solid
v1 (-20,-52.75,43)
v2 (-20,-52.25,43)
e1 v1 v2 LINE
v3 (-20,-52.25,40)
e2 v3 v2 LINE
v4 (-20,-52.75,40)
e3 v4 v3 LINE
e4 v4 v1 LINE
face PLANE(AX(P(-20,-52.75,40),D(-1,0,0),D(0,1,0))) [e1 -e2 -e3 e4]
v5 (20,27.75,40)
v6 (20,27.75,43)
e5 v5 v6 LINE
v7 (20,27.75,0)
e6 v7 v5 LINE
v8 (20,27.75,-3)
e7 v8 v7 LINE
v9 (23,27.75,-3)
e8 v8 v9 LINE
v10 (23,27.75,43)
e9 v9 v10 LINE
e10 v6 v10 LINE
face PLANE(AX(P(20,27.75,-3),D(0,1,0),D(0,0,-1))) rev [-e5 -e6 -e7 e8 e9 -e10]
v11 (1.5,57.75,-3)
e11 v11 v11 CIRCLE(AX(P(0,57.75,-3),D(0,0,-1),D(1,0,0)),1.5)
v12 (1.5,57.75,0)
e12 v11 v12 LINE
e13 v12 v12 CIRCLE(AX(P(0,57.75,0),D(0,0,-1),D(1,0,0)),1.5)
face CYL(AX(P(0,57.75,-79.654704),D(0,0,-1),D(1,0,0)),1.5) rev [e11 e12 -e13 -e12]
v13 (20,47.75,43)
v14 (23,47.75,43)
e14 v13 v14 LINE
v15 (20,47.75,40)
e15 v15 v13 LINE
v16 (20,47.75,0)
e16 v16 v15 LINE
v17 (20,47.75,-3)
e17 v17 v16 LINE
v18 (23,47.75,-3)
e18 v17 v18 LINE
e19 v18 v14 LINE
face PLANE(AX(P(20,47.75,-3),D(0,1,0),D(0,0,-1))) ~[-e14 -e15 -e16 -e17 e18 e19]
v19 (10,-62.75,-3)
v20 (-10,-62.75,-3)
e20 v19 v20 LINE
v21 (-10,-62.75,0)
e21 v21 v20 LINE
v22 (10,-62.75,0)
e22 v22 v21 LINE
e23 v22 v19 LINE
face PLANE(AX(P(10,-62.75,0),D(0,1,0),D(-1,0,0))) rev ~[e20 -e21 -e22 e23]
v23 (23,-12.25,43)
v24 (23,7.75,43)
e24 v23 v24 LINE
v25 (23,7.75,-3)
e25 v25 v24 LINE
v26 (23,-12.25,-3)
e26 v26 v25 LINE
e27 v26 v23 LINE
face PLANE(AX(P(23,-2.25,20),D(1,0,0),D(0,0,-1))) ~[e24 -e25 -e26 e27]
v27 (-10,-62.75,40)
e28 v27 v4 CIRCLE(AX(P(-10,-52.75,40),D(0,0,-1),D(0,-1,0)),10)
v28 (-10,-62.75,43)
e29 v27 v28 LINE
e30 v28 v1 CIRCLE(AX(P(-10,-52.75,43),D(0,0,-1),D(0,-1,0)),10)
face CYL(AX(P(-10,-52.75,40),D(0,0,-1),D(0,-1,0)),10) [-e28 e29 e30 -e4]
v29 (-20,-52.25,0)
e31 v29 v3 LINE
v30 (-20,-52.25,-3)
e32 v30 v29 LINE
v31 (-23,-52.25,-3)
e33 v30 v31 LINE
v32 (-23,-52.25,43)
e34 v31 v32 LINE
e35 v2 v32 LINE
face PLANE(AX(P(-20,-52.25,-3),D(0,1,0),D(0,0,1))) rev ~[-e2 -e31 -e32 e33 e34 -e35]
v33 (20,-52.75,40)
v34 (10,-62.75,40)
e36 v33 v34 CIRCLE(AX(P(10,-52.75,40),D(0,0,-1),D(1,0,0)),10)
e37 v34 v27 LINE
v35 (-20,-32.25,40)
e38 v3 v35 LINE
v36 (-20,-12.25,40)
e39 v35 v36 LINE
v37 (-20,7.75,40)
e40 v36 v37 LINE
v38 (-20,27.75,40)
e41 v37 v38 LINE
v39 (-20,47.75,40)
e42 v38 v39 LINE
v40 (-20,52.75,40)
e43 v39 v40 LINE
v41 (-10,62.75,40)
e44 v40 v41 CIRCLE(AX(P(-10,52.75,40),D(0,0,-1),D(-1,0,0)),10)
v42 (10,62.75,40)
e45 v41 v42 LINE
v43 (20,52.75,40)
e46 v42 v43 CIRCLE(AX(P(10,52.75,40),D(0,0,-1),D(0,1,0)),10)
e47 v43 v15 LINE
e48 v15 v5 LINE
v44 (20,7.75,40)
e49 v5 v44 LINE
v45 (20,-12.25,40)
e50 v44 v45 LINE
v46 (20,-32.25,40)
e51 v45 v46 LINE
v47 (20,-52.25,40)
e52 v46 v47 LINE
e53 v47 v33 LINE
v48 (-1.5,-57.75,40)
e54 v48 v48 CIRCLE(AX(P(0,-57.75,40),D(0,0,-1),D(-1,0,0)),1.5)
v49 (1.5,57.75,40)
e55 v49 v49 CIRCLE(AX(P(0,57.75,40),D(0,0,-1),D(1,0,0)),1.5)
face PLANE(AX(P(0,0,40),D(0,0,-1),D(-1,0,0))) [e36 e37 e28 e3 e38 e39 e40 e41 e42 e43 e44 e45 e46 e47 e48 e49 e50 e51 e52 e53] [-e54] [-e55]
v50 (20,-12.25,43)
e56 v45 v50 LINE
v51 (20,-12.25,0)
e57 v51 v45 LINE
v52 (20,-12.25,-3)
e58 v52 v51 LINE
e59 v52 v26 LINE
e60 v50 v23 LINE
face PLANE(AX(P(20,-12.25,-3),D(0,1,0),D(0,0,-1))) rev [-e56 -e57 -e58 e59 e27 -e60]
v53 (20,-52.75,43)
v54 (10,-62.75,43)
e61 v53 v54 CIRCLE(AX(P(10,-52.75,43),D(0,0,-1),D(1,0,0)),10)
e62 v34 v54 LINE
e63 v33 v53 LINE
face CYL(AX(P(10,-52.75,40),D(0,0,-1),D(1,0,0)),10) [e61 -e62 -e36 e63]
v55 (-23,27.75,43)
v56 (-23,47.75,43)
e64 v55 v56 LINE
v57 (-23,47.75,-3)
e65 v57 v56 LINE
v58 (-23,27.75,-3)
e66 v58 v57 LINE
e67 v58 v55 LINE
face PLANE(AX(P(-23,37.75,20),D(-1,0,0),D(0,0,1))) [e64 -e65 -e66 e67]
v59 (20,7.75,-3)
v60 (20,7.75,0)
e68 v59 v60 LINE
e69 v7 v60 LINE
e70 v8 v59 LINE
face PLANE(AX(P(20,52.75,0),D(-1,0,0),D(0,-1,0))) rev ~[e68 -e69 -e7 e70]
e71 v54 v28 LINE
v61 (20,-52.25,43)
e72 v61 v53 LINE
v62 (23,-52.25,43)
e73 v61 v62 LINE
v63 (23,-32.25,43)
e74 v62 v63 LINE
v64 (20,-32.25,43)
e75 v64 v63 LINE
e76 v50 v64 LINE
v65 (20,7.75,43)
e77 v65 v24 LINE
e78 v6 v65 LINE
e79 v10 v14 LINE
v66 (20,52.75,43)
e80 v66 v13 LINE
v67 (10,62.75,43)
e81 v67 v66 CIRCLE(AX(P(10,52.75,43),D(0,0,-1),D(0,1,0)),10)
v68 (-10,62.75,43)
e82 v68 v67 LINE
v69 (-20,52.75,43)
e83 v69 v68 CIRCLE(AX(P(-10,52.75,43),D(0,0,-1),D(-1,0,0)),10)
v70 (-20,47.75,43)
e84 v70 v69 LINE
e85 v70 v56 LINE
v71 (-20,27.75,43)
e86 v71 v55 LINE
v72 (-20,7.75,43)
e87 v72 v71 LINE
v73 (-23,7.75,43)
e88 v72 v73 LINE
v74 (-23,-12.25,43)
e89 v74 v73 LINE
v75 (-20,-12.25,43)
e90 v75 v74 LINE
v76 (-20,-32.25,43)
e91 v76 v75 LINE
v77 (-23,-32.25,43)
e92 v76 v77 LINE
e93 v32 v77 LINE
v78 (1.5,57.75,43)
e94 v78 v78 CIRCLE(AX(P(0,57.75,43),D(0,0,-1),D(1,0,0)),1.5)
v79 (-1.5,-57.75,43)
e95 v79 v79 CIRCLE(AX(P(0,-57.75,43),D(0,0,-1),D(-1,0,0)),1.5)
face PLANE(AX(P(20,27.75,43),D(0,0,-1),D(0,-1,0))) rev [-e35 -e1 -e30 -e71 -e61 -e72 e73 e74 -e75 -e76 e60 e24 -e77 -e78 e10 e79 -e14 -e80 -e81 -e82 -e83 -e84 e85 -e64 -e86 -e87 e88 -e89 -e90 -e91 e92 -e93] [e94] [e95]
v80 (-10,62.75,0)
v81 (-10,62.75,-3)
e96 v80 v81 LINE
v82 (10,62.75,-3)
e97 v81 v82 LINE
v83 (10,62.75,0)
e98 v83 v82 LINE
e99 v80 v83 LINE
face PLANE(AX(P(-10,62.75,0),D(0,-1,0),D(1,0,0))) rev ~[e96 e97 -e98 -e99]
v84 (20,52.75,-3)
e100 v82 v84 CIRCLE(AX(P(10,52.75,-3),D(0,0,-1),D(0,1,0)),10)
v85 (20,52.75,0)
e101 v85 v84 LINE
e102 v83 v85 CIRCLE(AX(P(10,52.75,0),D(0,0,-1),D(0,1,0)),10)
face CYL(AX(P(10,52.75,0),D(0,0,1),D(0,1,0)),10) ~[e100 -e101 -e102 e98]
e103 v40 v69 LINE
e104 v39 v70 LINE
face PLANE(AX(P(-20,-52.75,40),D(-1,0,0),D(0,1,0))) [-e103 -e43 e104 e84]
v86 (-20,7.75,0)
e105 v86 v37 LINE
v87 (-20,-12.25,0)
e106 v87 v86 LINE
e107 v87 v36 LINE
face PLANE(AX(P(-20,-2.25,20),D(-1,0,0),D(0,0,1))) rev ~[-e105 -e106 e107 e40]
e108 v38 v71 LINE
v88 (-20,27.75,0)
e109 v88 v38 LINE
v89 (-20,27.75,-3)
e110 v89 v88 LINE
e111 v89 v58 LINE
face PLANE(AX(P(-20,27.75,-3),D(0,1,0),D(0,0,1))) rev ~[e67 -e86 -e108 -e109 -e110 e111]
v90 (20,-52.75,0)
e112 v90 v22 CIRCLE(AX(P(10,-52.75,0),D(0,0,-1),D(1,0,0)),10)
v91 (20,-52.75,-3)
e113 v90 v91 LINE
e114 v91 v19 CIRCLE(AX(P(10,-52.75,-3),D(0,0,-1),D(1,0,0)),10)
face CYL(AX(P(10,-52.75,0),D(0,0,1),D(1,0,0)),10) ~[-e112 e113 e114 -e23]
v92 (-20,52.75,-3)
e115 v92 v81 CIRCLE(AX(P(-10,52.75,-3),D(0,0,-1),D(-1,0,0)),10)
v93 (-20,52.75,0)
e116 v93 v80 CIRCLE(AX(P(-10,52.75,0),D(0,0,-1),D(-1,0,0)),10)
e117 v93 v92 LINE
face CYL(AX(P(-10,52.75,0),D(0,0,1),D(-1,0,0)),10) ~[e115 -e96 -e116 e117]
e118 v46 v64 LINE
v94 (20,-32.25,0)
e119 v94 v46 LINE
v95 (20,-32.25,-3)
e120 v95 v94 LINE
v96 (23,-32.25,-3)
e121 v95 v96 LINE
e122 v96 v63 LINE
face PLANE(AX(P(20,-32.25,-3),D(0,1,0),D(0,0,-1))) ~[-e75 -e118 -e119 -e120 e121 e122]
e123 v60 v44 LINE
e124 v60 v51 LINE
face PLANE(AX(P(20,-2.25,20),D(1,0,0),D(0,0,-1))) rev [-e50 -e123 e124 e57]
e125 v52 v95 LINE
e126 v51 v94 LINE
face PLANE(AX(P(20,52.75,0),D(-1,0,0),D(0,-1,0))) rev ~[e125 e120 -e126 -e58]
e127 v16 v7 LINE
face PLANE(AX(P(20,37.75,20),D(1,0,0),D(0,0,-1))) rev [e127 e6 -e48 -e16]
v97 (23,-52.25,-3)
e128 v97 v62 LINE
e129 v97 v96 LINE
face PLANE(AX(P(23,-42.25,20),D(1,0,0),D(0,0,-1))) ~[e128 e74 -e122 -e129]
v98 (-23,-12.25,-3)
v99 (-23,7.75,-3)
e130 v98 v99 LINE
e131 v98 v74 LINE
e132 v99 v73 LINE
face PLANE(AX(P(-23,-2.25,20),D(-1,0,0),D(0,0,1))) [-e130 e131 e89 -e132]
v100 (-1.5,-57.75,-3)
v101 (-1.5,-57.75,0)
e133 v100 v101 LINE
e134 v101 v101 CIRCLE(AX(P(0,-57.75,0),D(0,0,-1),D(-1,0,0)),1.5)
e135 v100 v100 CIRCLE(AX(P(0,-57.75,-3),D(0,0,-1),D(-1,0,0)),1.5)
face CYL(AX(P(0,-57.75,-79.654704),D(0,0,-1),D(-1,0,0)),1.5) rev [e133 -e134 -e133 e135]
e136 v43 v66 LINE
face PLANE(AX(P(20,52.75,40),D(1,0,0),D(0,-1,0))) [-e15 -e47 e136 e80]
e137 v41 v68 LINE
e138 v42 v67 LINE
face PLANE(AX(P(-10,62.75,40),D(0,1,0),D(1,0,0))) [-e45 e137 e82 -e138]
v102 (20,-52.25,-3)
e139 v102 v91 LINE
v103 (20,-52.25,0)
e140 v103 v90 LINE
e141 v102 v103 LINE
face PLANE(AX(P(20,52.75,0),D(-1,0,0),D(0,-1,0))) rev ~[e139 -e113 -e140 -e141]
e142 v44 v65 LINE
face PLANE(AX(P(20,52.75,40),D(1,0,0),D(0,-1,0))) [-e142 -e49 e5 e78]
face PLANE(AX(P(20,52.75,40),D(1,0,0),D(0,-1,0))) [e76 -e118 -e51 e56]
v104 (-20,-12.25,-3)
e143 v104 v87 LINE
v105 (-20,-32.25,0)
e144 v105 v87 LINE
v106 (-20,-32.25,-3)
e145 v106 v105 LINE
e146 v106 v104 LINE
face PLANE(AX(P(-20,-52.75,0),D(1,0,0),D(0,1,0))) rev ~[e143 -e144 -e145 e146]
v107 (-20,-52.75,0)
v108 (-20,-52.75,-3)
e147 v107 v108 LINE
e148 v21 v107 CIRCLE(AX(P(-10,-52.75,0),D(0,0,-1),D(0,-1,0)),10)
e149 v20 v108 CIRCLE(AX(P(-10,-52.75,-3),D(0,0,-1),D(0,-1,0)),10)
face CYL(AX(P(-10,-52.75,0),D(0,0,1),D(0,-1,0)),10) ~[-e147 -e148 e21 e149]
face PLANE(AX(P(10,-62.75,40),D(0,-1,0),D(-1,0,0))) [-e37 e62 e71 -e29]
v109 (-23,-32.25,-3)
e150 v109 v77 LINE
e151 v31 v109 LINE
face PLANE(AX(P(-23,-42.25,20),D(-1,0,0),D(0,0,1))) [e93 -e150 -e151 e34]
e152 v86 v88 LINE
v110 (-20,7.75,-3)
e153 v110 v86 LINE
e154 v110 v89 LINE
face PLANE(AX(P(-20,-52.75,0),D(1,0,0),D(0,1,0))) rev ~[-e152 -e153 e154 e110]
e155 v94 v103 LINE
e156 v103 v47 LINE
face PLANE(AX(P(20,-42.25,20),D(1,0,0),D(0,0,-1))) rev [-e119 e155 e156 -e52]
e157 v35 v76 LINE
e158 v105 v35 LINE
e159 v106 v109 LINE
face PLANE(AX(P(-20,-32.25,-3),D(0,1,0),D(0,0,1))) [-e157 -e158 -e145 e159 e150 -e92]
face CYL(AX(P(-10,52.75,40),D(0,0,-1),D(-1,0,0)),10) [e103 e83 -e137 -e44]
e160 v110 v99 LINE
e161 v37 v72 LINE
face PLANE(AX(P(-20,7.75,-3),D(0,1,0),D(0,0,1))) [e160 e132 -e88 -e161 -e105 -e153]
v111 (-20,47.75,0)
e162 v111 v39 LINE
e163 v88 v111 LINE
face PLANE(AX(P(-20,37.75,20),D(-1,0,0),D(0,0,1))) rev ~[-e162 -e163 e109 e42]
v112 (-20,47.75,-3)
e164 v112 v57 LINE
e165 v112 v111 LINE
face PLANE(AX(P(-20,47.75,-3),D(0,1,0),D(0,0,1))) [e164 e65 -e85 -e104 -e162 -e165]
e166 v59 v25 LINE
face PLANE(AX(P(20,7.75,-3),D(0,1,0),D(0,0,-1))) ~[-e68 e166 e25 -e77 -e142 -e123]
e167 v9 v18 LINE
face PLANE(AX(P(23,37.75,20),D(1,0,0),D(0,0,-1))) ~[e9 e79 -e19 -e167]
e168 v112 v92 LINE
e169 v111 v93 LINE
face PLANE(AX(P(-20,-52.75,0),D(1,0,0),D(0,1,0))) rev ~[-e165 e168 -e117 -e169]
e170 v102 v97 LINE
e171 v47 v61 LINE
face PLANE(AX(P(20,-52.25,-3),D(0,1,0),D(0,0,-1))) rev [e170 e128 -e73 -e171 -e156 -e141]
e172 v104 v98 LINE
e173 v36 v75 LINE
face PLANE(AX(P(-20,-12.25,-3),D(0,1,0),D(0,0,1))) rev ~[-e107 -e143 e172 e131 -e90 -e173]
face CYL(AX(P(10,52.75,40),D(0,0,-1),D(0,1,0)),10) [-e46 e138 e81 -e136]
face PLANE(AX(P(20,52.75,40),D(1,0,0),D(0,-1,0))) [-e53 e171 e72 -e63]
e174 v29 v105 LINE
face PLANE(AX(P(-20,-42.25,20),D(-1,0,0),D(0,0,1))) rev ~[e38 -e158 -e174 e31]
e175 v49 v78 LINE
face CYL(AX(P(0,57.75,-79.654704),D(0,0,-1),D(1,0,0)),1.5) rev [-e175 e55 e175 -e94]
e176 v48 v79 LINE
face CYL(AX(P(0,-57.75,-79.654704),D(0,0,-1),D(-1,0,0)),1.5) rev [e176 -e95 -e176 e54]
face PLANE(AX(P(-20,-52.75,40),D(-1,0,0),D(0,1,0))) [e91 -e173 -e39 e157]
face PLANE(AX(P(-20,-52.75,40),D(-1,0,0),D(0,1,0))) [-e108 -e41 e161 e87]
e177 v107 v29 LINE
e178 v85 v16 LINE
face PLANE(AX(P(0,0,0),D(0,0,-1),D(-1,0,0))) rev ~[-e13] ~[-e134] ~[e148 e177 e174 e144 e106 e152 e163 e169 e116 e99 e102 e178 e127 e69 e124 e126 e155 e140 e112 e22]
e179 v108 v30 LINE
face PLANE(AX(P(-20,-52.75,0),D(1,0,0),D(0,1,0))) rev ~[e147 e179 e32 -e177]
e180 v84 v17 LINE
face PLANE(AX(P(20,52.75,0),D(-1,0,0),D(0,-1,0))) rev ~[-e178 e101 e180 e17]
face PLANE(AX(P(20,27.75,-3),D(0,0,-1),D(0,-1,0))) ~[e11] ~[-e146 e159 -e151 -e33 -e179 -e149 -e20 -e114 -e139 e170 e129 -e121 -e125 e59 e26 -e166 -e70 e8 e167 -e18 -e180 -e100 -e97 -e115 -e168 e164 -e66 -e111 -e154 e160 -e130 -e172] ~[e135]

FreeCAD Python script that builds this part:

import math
import FreeCAD as App
import Part
import Sketcher
from FreeCAD import Vector


def add_polygon(sketch, points):
    """Adds a closed chain of lines whose ends are joined by coincident constraints."""
    first, n = sketch.GeometryCount, len(points)
    for a, b in zip(points, points[1:] + points[:1]):
        sketch.addGeometry(Part.LineSegment(App.Vector(*a, 0), App.Vector(*b, 0)), False)
    for i in range(n):
        sketch.addConstraint(Sketcher.Constraint("Coincident", first + i, 2, first + (i + 1) % n, 1))

doc = App.newDocument("Part")
params = doc.addObject("Spreadsheet::Sheet", "Params")
for row, (alias, value) in enumerate([
    ("sketch1_radius", "10 mm"),
    ("sketch1_width", "20 mm"),
    ("sketch1_height", "105.5 mm"),
    ("pad1_length", "3 mm"),
    ("sketch2_radius", "10 mm"),
    ("sketch2_width", "20 mm"),
    ("sketch2_height", "105.5 mm"),
    ("pad2_length", "3 mm"),
    ("sketch3_diameter", "3 mm"),
    ("pad3_length", "79.654704 mm"),
    ("pad3_length2", "79.654704 mm"),
    ("sketch4_width", "20 mm"),
    ("sketch4_height", "46 mm"),
    ("pad4_length", "3 mm"),
], start=1):
    params.set(f"A{row}", alias)
    params.set(f"B{row}", "=" + value)
    params.setAlias(f"B{row}", alias)

body = doc.addObject("PartDesign::Body", "Body")

# Sketch on XY plane
sketch1 = body.newObject("Sketcher::SketchObject", "Sketch")
sketch1.AttachmentSupport = (doc.getObject("XY_Plane"), [""])
sketch1.MapMode = "FlatFace"
sketch1.AttachmentOffset = App.Placement(Vector(0, 0, 40), App.Rotation())
sketch1.addGeometry(Part.LineSegment(Vector(10, 63, 0), Vector(-10, 63, 0)), False)
sketch1.addGeometry(Part.ArcOfCircle(Part.Circle(Vector(-10, 53, 0), Vector(0, 0, 1), 10), math.radians(90), math.radians(180)), False)
sketch1.addGeometry(Part.LineSegment(Vector(-20, 53, 0), Vector(-20, -53, 0)), False)
sketch1.addGeometry(Part.ArcOfCircle(Part.Circle(Vector(-10, -53, 0), Vector(0, 0, 1), 10), math.radians(180), math.radians(270)), False)
sketch1.addGeometry(Part.LineSegment(Vector(-10, -63, 0), Vector(10, -63, 0)), False)
sketch1.addGeometry(Part.ArcOfCircle(Part.Circle(Vector(10, -53, 0), Vector(0, 0, 1), 10), math.radians(-90), math.radians(0)), False)
sketch1.addGeometry(Part.LineSegment(Vector(20, -53, 0), Vector(20, 53, 0)), False)
sketch1.addGeometry(Part.ArcOfCircle(Part.Circle(Vector(10, 53, 0), Vector(0, 0, 1), 10), math.radians(0), math.radians(90)), False)
sketch1.addConstraint(Sketcher.Constraint("Tangent", 0, 2, 1, 1))
sketch1.addConstraint(Sketcher.Constraint("Tangent", 1, 2, 2, 1))
sketch1.addConstraint(Sketcher.Constraint("Tangent", 2, 2, 3, 1))
sketch1.addConstraint(Sketcher.Constraint("Tangent", 3, 2, 4, 1))
sketch1.addConstraint(Sketcher.Constraint("Tangent", 4, 2, 5, 1))
sketch1.addConstraint(Sketcher.Constraint("Tangent", 5, 2, 6, 1))
sketch1.addConstraint(Sketcher.Constraint("Tangent", 6, 2, 7, 1))
sketch1.addConstraint(Sketcher.Constraint("Tangent", 7, 2, 0, 1))
sketch1.addConstraint(Sketcher.Constraint("Horizontal", 0))
sketch1.addConstraint(Sketcher.Constraint("Vertical", 2))
sketch1.addConstraint(Sketcher.Constraint("Horizontal", 4))
sketch1.addConstraint(Sketcher.Constraint("Vertical", 6))
sketch1.addConstraint(Sketcher.Constraint("Equal", 1, 3))
sketch1.addConstraint(Sketcher.Constraint("Equal", 3, 5))
sketch1.addConstraint(Sketcher.Constraint("Equal", 5, 7))
sketch1.addConstraint(Sketcher.Constraint("Symmetric", 1, 3, 5, 3, -1, 1))
sketch1.addConstraint(Sketcher.Constraint("Radius", 1, 10.0))
sketch1.addConstraint(Sketcher.Constraint("DistanceX", 0, 2, 0, 1, 20.0))
sketch1.addConstraint(Sketcher.Constraint("DistanceY", 2, 2, 2, 1, 105.5))
sketch1.setExpression("Constraints[16]", "Params.sketch1_radius")
sketch1.setExpression("Constraints[17]", "Params.sketch1_width")
sketch1.setExpression("Constraints[18]", "Params.sketch1_height")
pad1 = body.newObject("PartDesign::Pad", "Pad")
pad1.Profile = sketch1
pad1.setExpression("Length", "Params.pad1_length")
body2 = doc.addObject("PartDesign::Body", "Body001")

# Sketch on XY plane
sketch2 = body2.newObject("Sketcher::SketchObject", "Sketch001")
sketch2.AttachmentSupport = (doc.getObject("XY_Plane001"), [""])
sketch2.MapMode = "FlatFace"
sketch2.addGeometry(Part.LineSegment(Vector(10, 63, 0), Vector(-10, 63, 0)), False)
sketch2.addGeometry(Part.ArcOfCircle(Part.Circle(Vector(-10, 53, 0), Vector(0, 0, 1), 10), math.radians(90), math.radians(180)), False)
sketch2.addGeometry(Part.LineSegment(Vector(-20, 53, 0), Vector(-20, -53, 0)), False)
sketch2.addGeometry(Part.ArcOfCircle(Part.Circle(Vector(-10, -53, 0), Vector(0, 0, 1), 10), math.radians(180), math.radians(270)), False)
sketch2.addGeometry(Part.LineSegment(Vector(-10, -63, 0), Vector(10, -63, 0)), False)
sketch2.addGeometry(Part.ArcOfCircle(Part.Circle(Vector(10, -53, 0), Vector(0, 0, 1), 10), math.radians(-90), math.radians(0)), False)
sketch2.addGeometry(Part.LineSegment(Vector(20, -53, 0), Vector(20, 53, 0)), False)
sketch2.addGeometry(Part.ArcOfCircle(Part.Circle(Vector(10, 53, 0), Vector(0, 0, 1), 10), math.radians(0), math.radians(90)), False)
sketch2.addConstraint(Sketcher.Constraint("Tangent", 0, 2, 1, 1))
sketch2.addConstraint(Sketcher.Constraint("Tangent", 1, 2, 2, 1))
sketch2.addConstraint(Sketcher.Constraint("Tangent", 2, 2, 3, 1))
sketch2.addConstraint(Sketcher.Constraint("Tangent", 3, 2, 4, 1))
sketch2.addConstraint(Sketcher.Constraint("Tangent", 4, 2, 5, 1))
sketch2.addConstraint(Sketcher.Constraint("Tangent", 5, 2, 6, 1))
sketch2.addConstraint(Sketcher.Constraint("Tangent", 6, 2, 7, 1))
sketch2.addConstraint(Sketcher.Constraint("Tangent", 7, 2, 0, 1))
sketch2.addConstraint(Sketcher.Constraint("Horizontal", 0))
sketch2.addConstraint(Sketcher.Constraint("Vertical", 2))
sketch2.addConstraint(Sketcher.Constraint("Horizontal", 4))
sketch2.addConstraint(Sketcher.Constraint("Vertical", 6))
sketch2.addConstraint(Sketcher.Constraint("Equal", 1, 3))
sketch2.addConstraint(Sketcher.Constraint("Equal", 3, 5))
sketch2.addConstraint(Sketcher.Constraint("Equal", 5, 7))
sketch2.addConstraint(Sketcher.Constraint("Symmetric", 1, 3, 5, 3, -1, 1))
sketch2.addConstraint(Sketcher.Constraint("Radius", 1, 10.0))
sketch2.addConstraint(Sketcher.Constraint("DistanceX", 0, 2, 0, 1, 20.0))
sketch2.addConstraint(Sketcher.Constraint("DistanceY", 2, 2, 2, 1, 105.5))
sketch2.setExpression("Constraints[16]", "Params.sketch2_radius")
sketch2.setExpression("Constraints[17]", "Params.sketch2_width")
sketch2.setExpression("Constraints[18]", "Params.sketch2_height")
pad2 = body2.newObject("PartDesign::Pad", "Pad001")
pad2.Profile = sketch2
pad2.setExpression("Length", "Params.pad2_length")
pad2.Reversed = True
body3 = doc.addObject("PartDesign::Body", "Body002")
body3.AllowCompound = True

# Sketch on XY plane
sketch3 = body3.newObject("Sketcher::SketchObject", "Sketch002")
sketch3.AttachmentSupport = (doc.getObject("XY_Plane002"), [""])
sketch3.MapMode = "FlatFace"
sketch3.addGeometry(Part.Circle(Vector(0, 57.8, 0), Vector(0, 0, 1), 1.5), False)
sketch3.addGeometry(Part.Circle(Vector(0, -57.8, 0), Vector(0, 0, 1), 1.5), False)
sketch3.addConstraint(Sketcher.Constraint("Equal", 0, 1))
sketch3.addConstraint(Sketcher.Constraint("Symmetric", 0, 3, 1, 3, -1, 1))
sketch3.addConstraint(Sketcher.Constraint("PointOnObject", 0, 3, -2))
sketch3.addConstraint(Sketcher.Constraint("Diameter", 0, 3.0))
sketch3.addConstraint(Sketcher.Constraint("DistanceY", 1, 3, 0, 3, 115.5))
sketch3.setExpression("Constraints[3]", "Params.sketch3_diameter")
pad3 = body3.newObject("PartDesign::Pad", "Pad002")
pad3.Profile = sketch3
pad3.Type = "TwoLengths"
pad3.setExpression("Length", "Params.pad3_length")
pad3.setExpression("Length2", "Params.pad3_length2")
doc.recompute()

body4 = doc.addObject("PartDesign::Body", "Body003")
body4.BaseFeature = body3
boolean = body.newObject("PartDesign::Boolean", "Boolean")
boolean.Type = "Cut"
boolean.addObjects([body4])
doc.recompute()

boolean2 = body2.newObject("PartDesign::Boolean", "Boolean001")
boolean2.Type = "Cut"
boolean2.addObjects([body3])
body.AllowCompound = True
doc.recompute()

boolean3 = body.newObject("PartDesign::Boolean", "Boolean002")
boolean3.Type = "Fuse"
boolean3.addObjects([body2])

# Sketch on YZ plane
sketch4 = body.newObject("Sketcher::SketchObject", "Sketch003")
sketch4.AttachmentSupport = (doc.getObject("YZ_Plane"), [""])
sketch4.MapMode = "FlatFace"
sketch4.AttachmentOffset = App.Placement(Vector(0, 0, -20), App.Rotation())
add_polygon(sketch4, [(48, -3), (28, -3), (28, 43), (48, 43)])  # lines 0-3
add_polygon(sketch4, [(8, -3), (-12, -3), (-12, 43), (8, 43)])  # lines 4-7
add_polygon(sketch4, [(-32, -3), (-52, -3), (-52, 43), (-32, 43)])  # lines 8-11
sketch4.addConstraint(Sketcher.Constraint("Horizontal", 0))
sketch4.addConstraint(Sketcher.Constraint("Vertical", 1))
sketch4.addConstraint(Sketcher.Constraint("Horizontal", 2))
sketch4.addConstraint(Sketcher.Constraint("Vertical", 3))
sketch4.addConstraint(Sketcher.Constraint("Horizontal", 4))
sketch4.addConstraint(Sketcher.Constraint("Vertical", 5))
sketch4.addConstraint(Sketcher.Constraint("Horizontal", 6))
sketch4.addConstraint(Sketcher.Constraint("Vertical", 7))
sketch4.addConstraint(Sketcher.Constraint("Horizontal", 8))
sketch4.addConstraint(Sketcher.Constraint("Vertical", 9))
sketch4.addConstraint(Sketcher.Constraint("Horizontal", 10))
sketch4.addConstraint(Sketcher.Constraint("Vertical", 11))
sketch4.addConstraint(Sketcher.Constraint("Horizontal", 3, 2, 4, 2))
sketch4.addConstraint(Sketcher.Constraint("Horizontal", 2, 2, 5, 2))
sketch4.addConstraint(Sketcher.Constraint("Horizontal", 7, 2, 8, 2))
sketch4.addConstraint(Sketcher.Constraint("Horizontal", 6, 2, 9, 2))
sketch4.addConstraint(Sketcher.Constraint("Equal", 2, 4))
sketch4.addConstraint(Sketcher.Constraint("Equal", 6, 8))
sketch4.addConstraint(Sketcher.Constraint("DistanceX", 0, 2, 0, 1, 20.0))
sketch4.addConstraint(Sketcher.Constraint("DistanceY", 1, 1, 1, 2, 46.0))
sketch4.addConstraint(Sketcher.Constraint("DistanceY", 0, 2, -1, 1, 3.0))
sketch4.addConstraint(Sketcher.Constraint("DistanceX", 4, 2, 0, 2, 40.0))
sketch4.addConstraint(Sketcher.Constraint("DistanceX", 8, 2, 4, 2, 40.0))
sketch4.addConstraint(Sketcher.Constraint("DistanceX", -1, 1, 0, 2, 27.75))
sketch4.setExpression("Constraints[30]", "Params.sketch4_width")
sketch4.setExpression("Constraints[31]", "Params.sketch4_height")
pad4 = body.newObject("PartDesign::Pad", "Pad003")
pad4.Profile = sketch4
pad4.setExpression("Length", "Params.pad4_length")
pad4.Reversed = True
doc.recompute()

mirrored = body.newObject("PartDesign::Mirrored", "Mirrored")
mirrored.Originals = [pad4]
mirrored.MirrorPlane = (doc.getObject("YZ_Plane"), [""])
body.Tip = mirrored

doc.recompute()
